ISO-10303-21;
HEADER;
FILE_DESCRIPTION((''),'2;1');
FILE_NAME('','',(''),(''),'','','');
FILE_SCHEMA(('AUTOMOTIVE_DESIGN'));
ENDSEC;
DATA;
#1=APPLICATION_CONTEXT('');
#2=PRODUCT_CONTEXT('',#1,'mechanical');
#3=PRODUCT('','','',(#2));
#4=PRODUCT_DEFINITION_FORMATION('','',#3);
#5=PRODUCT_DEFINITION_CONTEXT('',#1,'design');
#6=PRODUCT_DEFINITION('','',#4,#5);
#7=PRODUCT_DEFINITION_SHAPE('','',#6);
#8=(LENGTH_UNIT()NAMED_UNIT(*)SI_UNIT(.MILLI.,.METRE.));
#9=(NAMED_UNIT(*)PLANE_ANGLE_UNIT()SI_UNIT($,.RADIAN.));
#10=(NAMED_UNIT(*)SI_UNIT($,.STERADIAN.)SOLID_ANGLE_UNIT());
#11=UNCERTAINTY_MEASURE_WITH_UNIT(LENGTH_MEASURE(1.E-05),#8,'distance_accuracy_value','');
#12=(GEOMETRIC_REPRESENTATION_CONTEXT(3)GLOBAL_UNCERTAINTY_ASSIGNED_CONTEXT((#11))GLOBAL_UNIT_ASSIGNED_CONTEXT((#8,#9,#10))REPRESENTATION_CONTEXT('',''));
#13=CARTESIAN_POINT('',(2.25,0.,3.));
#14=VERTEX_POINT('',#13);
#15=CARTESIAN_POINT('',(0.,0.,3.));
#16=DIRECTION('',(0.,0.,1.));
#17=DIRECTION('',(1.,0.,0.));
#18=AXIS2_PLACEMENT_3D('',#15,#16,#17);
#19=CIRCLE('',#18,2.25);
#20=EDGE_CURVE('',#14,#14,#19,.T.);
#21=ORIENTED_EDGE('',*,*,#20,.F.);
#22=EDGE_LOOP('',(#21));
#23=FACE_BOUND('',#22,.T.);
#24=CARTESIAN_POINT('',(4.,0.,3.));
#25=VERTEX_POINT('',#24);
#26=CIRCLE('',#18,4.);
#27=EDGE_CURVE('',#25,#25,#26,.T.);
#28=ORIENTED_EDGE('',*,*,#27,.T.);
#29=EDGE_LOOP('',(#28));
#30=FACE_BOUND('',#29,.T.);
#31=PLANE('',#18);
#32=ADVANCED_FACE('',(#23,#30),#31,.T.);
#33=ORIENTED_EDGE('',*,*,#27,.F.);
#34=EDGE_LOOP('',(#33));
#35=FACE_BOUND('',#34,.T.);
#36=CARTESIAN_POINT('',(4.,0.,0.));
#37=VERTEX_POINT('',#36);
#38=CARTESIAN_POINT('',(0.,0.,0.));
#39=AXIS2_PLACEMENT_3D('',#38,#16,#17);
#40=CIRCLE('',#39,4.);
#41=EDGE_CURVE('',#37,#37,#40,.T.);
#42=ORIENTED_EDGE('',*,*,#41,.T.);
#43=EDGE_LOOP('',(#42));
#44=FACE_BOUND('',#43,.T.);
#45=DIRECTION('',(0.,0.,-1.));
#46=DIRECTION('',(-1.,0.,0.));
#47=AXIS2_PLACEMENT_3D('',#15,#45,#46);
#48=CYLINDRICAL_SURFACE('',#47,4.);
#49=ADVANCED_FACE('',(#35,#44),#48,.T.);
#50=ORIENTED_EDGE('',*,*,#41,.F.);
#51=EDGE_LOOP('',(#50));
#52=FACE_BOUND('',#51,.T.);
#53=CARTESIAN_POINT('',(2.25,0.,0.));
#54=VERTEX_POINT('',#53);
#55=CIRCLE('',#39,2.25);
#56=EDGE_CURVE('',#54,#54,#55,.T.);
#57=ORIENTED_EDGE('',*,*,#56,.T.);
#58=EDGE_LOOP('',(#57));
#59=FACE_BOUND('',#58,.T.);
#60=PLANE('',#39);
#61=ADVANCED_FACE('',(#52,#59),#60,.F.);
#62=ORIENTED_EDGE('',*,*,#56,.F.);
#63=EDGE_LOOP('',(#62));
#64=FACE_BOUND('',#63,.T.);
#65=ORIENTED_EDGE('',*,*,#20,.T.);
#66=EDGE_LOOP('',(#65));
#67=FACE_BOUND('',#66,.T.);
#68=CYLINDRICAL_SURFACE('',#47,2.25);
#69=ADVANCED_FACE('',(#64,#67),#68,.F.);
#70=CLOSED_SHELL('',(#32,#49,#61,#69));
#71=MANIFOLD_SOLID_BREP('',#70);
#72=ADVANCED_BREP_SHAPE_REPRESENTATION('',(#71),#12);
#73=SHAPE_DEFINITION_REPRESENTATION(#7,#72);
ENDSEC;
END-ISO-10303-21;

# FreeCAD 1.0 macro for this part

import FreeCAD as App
import Part
import Sketcher
from FreeCAD import Vector
Q = App.Units.Quantity

doc = App.newDocument("Part")
body = doc.addObject("PartDesign::Body", "Body")

# Sketch on XY plane
sketch1 = doc.addObject("Sketcher::SketchObject", "Sketch")
body.addObject(sketch1)
sketch1.AttachmentSupport = (doc.XY_Plane, [""])
sketch1.MapMode = "FlatFace"
sketch1.addGeometry([
    Part.Circle(Vector(0, 0, 0), Vector(0, 0, 1), 4),
    Part.Circle(Vector(0, 0, 0), Vector(0, 0, 1), 2.2),
], False)
sketch1.addConstraint([
    Sketcher.Constraint("Coincident", 0, 3, -1, 1),
    Sketcher.Constraint("Coincident", 1, 3, -1, 1),
    Sketcher.Constraint("Diameter", 0, Q("8 mm")),
    Sketcher.Constraint("Diameter", 1, Q("4.5 mm")),
])
pad1 = doc.addObject("PartDesign::Pad", "Pad")
body.addObject(pad1)
pad1.Profile = sketch1
pad1.Length = 3

doc.recompute()
